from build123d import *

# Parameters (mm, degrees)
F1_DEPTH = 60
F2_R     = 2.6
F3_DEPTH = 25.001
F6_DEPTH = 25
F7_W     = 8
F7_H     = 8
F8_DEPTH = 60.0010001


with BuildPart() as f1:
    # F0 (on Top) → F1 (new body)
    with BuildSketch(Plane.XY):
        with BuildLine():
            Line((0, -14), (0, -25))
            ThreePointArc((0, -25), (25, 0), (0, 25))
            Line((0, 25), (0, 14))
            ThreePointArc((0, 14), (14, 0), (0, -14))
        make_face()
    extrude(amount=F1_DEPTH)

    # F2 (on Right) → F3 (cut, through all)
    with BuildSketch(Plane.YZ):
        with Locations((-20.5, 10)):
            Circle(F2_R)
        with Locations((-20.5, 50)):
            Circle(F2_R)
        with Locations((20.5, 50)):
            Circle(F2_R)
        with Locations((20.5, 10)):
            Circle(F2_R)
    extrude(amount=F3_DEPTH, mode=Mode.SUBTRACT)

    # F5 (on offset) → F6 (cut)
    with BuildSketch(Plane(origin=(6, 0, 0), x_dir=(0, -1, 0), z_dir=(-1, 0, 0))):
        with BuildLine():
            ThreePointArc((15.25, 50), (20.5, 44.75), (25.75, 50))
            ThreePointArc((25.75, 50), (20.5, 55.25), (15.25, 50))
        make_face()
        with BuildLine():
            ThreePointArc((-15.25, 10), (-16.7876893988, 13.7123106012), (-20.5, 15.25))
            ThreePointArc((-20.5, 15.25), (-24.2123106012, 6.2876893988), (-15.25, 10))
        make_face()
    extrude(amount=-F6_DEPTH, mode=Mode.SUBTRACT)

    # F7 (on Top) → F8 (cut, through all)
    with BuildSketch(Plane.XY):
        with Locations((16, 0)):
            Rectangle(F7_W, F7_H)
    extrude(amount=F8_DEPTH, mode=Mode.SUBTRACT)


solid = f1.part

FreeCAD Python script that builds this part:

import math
import FreeCAD as App
import Part
import Sketcher

V = App.Vector
Q = App.Units.Quantity


def add_polygon(sketch, points):
    """Adds a closed chain of lines whose ends are joined by coincident constraints."""
    first, n = sketch.GeometryCount, len(points)
    for a, b in zip(points, points[1:] + points[:1]):
        sketch.addGeometry(Part.LineSegment(App.Vector(*a, 0), App.Vector(*b, 0)), False)
    for i in range(n):
        sketch.addConstraint(Sketcher.Constraint("Coincident", first + i, 2, first + (i + 1) % n, 1))

doc = App.newDocument("Part")
body = doc.addObject("PartDesign::Body", "Body")

sketch1 = body.newObject("Sketcher::SketchObject", "Sketch")
sketch1.AttachmentSupport = (doc.getObject("XY_Plane"), [""])
sketch1.MapMode = "FlatFace"
sketch1.addGeometry([
    Part.LineSegment(V(0, -14, 0), V(0, -25, 0)),
    Part.ArcOfCircle(Part.Circle(V(0, 0, 0), V(0, 0, 1), 25), math.radians(-90), math.radians(90)),
    Part.LineSegment(V(0, 25, 0), V(0, 14, 0)),
    Part.ArcOfCircle(Part.Circle(V(0, 0, 0), V(0, 0, 1), 14), math.radians(-90), math.radians(90)),
], False)
sketch1.addConstraint([
    Sketcher.Constraint("Coincident", 0, 2, 1, 1),
    Sketcher.Constraint("Coincident", 1, 2, 2, 1),
    Sketcher.Constraint("Coincident", 2, 2, 3, 2),
    Sketcher.Constraint("Coincident", 3, 1, 0, 1),
    Sketcher.Constraint("Vertical", 0),
    Sketcher.Constraint("Vertical", 2),
    Sketcher.Constraint("Coincident", 1, 3, -1, 1),
    Sketcher.Constraint("Coincident", 3, 3, -1, 1),
    Sketcher.Constraint("PointOnObject", 0, 2, -2),
    Sketcher.Constraint("PointOnObject", 1, 2, -2),
    Sketcher.Constraint("Radius", 1, Q("25 mm")),
    Sketcher.Constraint("Radius", 3, Q("14 mm")),
])
pad1 = body.newObject("PartDesign::Pad", "Pad")
pad1.Profile = sketch1
pad1.Length = 60

sketch2 = body.newObject("Sketcher::SketchObject", "Sketch001")
sketch2.AttachmentSupport = (doc.getObject("YZ_Plane"), [""])
sketch2.MapMode = "FlatFace"
sketch2.addGeometry([
    Part.Circle(V(-20.5, 10, 0), V(0, 0, 1), 2.6),
    Part.Circle(V(-20.5, 50, 0), V(0, 0, 1), 2.6),
    Part.Circle(V(20.5, 50, 0), V(0, 0, 1), 2.6),
    Part.Circle(V(20.5, 10, 0), V(0, 0, 1), 2.6),
], False)
sketch2.addConstraint([
    Sketcher.Constraint("Equal", 0, 1),
    Sketcher.Constraint("Equal", 1, 2),
    Sketcher.Constraint("Equal", 2, 3),
    Sketcher.Constraint("Symmetric", 1, 3, 2, 3, -2),
    Sketcher.Constraint("Symmetric", 0, 3, 3, 3, -2),
    Sketcher.Constraint("Vertical", 0, 3, 1, 3),
    Sketcher.Constraint("Diameter", 0, Q("5.2 mm")),
    Sketcher.Constraint("DistanceY", -1, 1, 0, 3, Q("10 mm")),
    Sketcher.Constraint("DistanceY", -1, 1, 1, 3, Q("50 mm")),
    Sketcher.Constraint("DistanceX", 1, 3, 2, 3, Q("41 mm")),
])
pocket1 = body.newObject("PartDesign::Pocket", "Pocket")
pocket1.Profile = sketch2
pocket1.Type = "ThroughAll"
pocket1.Reversed = True

sketch3 = body.newObject("Sketcher::SketchObject", "Sketch002")
sketch3.AttachmentSupport = (doc.getObject("YZ_Plane"), [""])
sketch3.MapMode = "FlatFace"
sketch3.AttachmentOffset = App.Placement(V(0, 0, 6), App.Rotation())
sketch3.addGeometry([
    Part.Circle(V(-20, 50, 0), V(0, 0, 1), 5),
    Part.ArcOfCircle(Part.Circle(V(20, 10, 0), V(0, 0, 1), 5), math.radians(90), math.radians(180)),
    Part.ArcOfCircle(Part.Circle(V(20, 10, 0), V(0, 0, 1), 5), math.radians(180), math.radians(450)),
], False)
sketch3.addConstraint([
    Sketcher.Constraint("Tangent", 1, 1, 2, 2),
    Sketcher.Constraint("Coincident", 2, 1, 1, 2),
    Sketcher.Constraint("Equal", 0, 1),
    Sketcher.Constraint("Horizontal", 1, 3, 2, 1),
    Sketcher.Constraint("Vertical", 2, 3, 1, 1),
    Sketcher.Constraint("Diameter", 0, Q("10.5 mm")),
    Sketcher.Constraint("DistanceY", -1, 1, 0, 3, Q("50 mm")),
    Sketcher.Constraint("DistanceY", -1, 1, 1, 3, Q("10 mm")),
    Sketcher.Constraint("DistanceX", 0, 3, 1, 3, Q("41 mm")),
    Sketcher.Constraint("DistanceX", 0, 3, -1, 1, Q("20.5 mm")),
])
pocket2 = body.newObject("PartDesign::Pocket", "Pocket001")
pocket2.Profile = sketch3
pocket2.Length = 25
pocket2.Reversed = True

sketch4 = body.newObject("Sketcher::SketchObject", "Sketch003")
sketch4.AttachmentSupport = (doc.getObject("XY_Plane"), [""])
sketch4.MapMode = "FlatFace"
add_polygon(sketch4, [(12, 4), (12, -4), (20, -4), (20, 4)])
sketch4.addConstraint([
    Sketcher.Constraint("Vertical", 0),
    Sketcher.Constraint("Horizontal", 1),
    Sketcher.Constraint("Vertical", 2),
    Sketcher.Constraint("Horizontal", 3),
    Sketcher.Constraint("Equal", 3, 0),
    Sketcher.Constraint("DistanceX", 1, 1, 1, 2, Q("8 mm")),
    Sketcher.Constraint("DistanceX", -1, 1, 0, 2, Q("12 mm")),
    Sketcher.Constraint("DistanceY", 0, 2, -1, 1, Q("4 mm")),
])
pocket3 = body.newObject("PartDesign::Pocket", "Pocket002")
pocket3.Profile = sketch4
pocket3.Type = "ThroughAll"
pocket3.Reversed = True

doc.recompute()
